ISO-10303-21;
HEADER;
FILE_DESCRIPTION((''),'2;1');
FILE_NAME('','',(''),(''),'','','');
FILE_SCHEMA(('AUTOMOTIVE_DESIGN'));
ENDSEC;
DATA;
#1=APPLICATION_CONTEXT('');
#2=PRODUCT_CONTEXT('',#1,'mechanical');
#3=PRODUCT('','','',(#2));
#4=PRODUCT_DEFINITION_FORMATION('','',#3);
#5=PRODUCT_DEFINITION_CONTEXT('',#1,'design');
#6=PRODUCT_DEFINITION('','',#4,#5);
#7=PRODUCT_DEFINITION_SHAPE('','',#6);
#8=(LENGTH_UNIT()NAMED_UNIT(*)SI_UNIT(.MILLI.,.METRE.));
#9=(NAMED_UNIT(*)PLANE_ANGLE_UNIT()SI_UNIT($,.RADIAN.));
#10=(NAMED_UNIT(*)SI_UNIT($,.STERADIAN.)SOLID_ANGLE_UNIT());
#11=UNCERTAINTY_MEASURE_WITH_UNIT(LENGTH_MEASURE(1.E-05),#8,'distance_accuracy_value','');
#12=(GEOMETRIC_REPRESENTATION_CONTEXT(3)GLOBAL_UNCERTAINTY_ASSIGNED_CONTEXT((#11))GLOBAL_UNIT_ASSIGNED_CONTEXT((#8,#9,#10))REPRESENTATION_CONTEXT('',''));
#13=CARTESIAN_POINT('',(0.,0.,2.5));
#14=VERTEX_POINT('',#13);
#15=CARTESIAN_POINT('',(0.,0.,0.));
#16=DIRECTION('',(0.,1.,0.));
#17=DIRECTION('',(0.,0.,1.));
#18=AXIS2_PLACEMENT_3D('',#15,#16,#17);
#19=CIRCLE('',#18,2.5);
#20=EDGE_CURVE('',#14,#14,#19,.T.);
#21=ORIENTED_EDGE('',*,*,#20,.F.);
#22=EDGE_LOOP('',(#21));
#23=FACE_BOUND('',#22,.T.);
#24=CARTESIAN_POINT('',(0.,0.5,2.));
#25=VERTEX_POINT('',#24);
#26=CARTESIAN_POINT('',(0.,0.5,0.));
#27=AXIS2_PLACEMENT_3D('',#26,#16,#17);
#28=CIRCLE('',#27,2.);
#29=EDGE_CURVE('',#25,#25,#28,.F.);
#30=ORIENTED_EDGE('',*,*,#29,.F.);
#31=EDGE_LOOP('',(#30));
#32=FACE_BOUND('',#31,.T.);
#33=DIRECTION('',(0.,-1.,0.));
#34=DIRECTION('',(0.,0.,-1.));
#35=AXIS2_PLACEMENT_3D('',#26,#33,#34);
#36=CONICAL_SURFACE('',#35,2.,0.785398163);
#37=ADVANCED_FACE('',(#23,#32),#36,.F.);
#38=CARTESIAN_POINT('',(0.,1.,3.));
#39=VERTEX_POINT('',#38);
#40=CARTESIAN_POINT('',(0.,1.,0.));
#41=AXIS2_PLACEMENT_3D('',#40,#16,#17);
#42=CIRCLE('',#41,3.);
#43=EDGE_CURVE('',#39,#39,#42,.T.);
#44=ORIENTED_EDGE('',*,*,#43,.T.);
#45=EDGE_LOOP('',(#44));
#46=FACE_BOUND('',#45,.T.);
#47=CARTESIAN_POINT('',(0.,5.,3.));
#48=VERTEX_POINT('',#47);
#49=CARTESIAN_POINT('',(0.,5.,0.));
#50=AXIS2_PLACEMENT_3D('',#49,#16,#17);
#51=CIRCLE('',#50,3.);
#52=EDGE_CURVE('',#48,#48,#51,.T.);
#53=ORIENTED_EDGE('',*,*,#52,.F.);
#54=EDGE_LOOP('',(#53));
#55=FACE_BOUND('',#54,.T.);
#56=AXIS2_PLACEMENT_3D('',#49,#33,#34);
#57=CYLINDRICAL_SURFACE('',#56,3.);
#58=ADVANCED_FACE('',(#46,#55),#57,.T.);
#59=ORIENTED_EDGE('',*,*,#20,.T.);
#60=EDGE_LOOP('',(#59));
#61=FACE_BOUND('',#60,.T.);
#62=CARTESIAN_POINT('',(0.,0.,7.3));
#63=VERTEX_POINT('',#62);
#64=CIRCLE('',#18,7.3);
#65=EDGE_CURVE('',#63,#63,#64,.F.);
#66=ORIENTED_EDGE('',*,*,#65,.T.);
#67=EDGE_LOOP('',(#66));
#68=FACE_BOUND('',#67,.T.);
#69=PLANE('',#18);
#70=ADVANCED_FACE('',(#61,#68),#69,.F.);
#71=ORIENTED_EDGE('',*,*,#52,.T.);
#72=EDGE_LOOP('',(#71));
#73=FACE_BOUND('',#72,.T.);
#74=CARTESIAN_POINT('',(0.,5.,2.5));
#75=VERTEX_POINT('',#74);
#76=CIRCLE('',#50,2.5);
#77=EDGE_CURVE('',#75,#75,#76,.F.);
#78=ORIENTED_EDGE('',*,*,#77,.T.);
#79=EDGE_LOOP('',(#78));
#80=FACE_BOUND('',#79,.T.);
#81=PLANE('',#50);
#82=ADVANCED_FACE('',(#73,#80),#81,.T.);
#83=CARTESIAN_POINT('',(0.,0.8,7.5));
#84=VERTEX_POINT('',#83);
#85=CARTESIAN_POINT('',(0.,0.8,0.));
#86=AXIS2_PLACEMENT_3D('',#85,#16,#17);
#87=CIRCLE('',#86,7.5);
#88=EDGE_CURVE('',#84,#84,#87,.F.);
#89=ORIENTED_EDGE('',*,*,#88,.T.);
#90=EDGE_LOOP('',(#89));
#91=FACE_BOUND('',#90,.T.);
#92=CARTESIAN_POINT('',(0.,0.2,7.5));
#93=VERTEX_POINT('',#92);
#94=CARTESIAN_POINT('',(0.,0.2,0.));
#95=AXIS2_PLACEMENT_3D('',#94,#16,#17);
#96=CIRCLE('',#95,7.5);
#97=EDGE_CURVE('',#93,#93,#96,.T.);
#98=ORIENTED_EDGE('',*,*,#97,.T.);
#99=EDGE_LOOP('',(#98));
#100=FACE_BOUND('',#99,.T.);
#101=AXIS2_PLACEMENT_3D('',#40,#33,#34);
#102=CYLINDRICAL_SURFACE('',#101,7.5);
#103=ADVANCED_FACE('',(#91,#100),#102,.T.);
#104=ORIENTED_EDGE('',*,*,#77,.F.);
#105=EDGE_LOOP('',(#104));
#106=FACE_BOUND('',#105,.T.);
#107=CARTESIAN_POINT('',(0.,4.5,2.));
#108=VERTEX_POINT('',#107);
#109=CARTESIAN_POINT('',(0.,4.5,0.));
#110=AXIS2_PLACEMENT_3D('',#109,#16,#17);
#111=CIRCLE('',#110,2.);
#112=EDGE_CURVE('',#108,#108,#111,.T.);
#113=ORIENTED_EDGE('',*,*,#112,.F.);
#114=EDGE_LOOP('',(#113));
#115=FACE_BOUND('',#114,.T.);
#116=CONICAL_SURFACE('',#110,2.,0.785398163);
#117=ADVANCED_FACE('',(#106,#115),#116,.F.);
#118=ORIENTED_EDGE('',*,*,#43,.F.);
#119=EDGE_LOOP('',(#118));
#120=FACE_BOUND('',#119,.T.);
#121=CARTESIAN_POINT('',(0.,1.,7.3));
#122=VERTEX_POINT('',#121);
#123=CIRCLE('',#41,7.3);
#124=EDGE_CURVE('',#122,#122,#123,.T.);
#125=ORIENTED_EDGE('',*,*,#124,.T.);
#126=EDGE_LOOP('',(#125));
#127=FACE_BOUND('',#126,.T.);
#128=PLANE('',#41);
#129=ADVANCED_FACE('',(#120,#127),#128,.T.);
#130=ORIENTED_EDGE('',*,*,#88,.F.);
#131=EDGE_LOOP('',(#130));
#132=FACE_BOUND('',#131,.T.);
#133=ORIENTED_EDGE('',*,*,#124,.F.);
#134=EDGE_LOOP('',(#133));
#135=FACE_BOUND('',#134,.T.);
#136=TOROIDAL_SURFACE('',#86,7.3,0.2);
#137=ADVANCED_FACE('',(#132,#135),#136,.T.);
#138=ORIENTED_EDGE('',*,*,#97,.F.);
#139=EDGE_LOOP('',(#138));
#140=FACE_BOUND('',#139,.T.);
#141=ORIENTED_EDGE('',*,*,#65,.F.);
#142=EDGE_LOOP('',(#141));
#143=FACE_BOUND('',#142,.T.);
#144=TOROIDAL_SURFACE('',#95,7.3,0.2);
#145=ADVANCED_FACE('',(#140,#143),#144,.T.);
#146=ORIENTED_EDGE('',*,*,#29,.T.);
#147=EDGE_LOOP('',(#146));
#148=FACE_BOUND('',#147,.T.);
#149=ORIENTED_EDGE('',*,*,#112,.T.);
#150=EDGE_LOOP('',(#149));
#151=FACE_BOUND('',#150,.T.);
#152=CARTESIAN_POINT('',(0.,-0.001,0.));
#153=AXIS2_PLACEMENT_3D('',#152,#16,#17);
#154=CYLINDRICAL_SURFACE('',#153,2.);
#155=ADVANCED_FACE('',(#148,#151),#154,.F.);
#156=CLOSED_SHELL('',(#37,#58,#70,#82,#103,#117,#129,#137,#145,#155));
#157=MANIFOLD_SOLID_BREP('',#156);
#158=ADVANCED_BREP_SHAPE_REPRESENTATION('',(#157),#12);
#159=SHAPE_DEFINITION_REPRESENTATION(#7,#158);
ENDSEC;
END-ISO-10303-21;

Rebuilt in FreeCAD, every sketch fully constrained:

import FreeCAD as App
import Part
import Sketcher

V = App.Vector
Q = App.Units.Quantity


def edges_at(feature, points):
    """Names of the edges that pass closest to the given points."""
    edges = feature.Shape.Edges
    near = lambda p: min(range(len(edges)), key=lambda i: edges[i].distToShape(Part.Vertex(*p))[0])
    return sorted({f"Edge{near(p) + 1}" for p in points})

doc = App.newDocument("Part")
body = doc.addObject("PartDesign::Body", "Body")

sketch1 = body.newObject("Sketcher::SketchObject", "Sketch")
sketch1.AttachmentSupport = (doc.getObject("XZ_Plane"), [""])
sketch1.MapMode = "FlatFace"
sketch1.addGeometry(Part.Circle(V(0, 0, 0), V(0, 0, 1), 8), False)
sketch1.addConstraint([
    Sketcher.Constraint("Coincident", 0, 3, -1, 1),
    Sketcher.Constraint("Diameter", 0, Q("15 mm")),
])
pad1 = body.newObject("PartDesign::Pad", "Pad")
pad1.Profile = sketch1
pad1.Length = 1
pad1.Reversed = True

sketch2 = body.newObject("Sketcher::SketchObject", "Sketch001")
sketch2.AttachmentSupport = (doc.getObject("XZ_Plane"), [""])
sketch2.MapMode = "FlatFace"
sketch2.AttachmentOffset = App.Placement(V(0, 0, -1), App.Rotation())
sketch2.addGeometry(Part.Circle(V(0, 0, 0), V(0, 0, 1), 3), False)
sketch2.addConstraint([
    Sketcher.Constraint("Coincident", 0, 3, -1, 1),
    Sketcher.Constraint("Diameter", 0, Q("6 mm")),
])
pad2 = body.newObject("PartDesign::Pad", "Pad001")
pad2.Profile = sketch2
pad2.Length = 4
pad2.Reversed = True

sketch3 = body.newObject("Sketcher::SketchObject", "Sketch002")
sketch3.AttachmentSupport = (doc.getObject("XZ_Plane"), [""])
sketch3.MapMode = "FlatFace"
sketch3.AttachmentOffset = App.Placement(V(0, 0, -5), App.Rotation())
sketch3.addGeometry(Part.Circle(V(0, 0, 0), V(0, 0, 1), 2), False)
sketch3.addConstraint([
    Sketcher.Constraint("Coincident", 0, 3, -1, 1),
    Sketcher.Constraint("Diameter", 0, Q("4 mm")),
])
pocket1 = body.newObject("PartDesign::Pocket", "Pocket")
pocket1.Profile = sketch3
pocket1.Type = "UpToFirst"
pocket1.Reversed = True
doc.recompute()

chamfer = body.newObject("PartDesign::Chamfer", "Chamfer")
chamfer.Base = (pocket1, edges_at(pocket1, [(0, 5, -2), (0, 0, -2)]))
chamfer.Size = 0.5
doc.recompute()

fillet = body.newObject("PartDesign::Fillet", "Fillet")
fillet.Base = (chamfer, edges_at(chamfer, [(0, 0, -7.5), (0, 1, -7.5)]))
fillet.Radius = 0.2

doc.recompute()
